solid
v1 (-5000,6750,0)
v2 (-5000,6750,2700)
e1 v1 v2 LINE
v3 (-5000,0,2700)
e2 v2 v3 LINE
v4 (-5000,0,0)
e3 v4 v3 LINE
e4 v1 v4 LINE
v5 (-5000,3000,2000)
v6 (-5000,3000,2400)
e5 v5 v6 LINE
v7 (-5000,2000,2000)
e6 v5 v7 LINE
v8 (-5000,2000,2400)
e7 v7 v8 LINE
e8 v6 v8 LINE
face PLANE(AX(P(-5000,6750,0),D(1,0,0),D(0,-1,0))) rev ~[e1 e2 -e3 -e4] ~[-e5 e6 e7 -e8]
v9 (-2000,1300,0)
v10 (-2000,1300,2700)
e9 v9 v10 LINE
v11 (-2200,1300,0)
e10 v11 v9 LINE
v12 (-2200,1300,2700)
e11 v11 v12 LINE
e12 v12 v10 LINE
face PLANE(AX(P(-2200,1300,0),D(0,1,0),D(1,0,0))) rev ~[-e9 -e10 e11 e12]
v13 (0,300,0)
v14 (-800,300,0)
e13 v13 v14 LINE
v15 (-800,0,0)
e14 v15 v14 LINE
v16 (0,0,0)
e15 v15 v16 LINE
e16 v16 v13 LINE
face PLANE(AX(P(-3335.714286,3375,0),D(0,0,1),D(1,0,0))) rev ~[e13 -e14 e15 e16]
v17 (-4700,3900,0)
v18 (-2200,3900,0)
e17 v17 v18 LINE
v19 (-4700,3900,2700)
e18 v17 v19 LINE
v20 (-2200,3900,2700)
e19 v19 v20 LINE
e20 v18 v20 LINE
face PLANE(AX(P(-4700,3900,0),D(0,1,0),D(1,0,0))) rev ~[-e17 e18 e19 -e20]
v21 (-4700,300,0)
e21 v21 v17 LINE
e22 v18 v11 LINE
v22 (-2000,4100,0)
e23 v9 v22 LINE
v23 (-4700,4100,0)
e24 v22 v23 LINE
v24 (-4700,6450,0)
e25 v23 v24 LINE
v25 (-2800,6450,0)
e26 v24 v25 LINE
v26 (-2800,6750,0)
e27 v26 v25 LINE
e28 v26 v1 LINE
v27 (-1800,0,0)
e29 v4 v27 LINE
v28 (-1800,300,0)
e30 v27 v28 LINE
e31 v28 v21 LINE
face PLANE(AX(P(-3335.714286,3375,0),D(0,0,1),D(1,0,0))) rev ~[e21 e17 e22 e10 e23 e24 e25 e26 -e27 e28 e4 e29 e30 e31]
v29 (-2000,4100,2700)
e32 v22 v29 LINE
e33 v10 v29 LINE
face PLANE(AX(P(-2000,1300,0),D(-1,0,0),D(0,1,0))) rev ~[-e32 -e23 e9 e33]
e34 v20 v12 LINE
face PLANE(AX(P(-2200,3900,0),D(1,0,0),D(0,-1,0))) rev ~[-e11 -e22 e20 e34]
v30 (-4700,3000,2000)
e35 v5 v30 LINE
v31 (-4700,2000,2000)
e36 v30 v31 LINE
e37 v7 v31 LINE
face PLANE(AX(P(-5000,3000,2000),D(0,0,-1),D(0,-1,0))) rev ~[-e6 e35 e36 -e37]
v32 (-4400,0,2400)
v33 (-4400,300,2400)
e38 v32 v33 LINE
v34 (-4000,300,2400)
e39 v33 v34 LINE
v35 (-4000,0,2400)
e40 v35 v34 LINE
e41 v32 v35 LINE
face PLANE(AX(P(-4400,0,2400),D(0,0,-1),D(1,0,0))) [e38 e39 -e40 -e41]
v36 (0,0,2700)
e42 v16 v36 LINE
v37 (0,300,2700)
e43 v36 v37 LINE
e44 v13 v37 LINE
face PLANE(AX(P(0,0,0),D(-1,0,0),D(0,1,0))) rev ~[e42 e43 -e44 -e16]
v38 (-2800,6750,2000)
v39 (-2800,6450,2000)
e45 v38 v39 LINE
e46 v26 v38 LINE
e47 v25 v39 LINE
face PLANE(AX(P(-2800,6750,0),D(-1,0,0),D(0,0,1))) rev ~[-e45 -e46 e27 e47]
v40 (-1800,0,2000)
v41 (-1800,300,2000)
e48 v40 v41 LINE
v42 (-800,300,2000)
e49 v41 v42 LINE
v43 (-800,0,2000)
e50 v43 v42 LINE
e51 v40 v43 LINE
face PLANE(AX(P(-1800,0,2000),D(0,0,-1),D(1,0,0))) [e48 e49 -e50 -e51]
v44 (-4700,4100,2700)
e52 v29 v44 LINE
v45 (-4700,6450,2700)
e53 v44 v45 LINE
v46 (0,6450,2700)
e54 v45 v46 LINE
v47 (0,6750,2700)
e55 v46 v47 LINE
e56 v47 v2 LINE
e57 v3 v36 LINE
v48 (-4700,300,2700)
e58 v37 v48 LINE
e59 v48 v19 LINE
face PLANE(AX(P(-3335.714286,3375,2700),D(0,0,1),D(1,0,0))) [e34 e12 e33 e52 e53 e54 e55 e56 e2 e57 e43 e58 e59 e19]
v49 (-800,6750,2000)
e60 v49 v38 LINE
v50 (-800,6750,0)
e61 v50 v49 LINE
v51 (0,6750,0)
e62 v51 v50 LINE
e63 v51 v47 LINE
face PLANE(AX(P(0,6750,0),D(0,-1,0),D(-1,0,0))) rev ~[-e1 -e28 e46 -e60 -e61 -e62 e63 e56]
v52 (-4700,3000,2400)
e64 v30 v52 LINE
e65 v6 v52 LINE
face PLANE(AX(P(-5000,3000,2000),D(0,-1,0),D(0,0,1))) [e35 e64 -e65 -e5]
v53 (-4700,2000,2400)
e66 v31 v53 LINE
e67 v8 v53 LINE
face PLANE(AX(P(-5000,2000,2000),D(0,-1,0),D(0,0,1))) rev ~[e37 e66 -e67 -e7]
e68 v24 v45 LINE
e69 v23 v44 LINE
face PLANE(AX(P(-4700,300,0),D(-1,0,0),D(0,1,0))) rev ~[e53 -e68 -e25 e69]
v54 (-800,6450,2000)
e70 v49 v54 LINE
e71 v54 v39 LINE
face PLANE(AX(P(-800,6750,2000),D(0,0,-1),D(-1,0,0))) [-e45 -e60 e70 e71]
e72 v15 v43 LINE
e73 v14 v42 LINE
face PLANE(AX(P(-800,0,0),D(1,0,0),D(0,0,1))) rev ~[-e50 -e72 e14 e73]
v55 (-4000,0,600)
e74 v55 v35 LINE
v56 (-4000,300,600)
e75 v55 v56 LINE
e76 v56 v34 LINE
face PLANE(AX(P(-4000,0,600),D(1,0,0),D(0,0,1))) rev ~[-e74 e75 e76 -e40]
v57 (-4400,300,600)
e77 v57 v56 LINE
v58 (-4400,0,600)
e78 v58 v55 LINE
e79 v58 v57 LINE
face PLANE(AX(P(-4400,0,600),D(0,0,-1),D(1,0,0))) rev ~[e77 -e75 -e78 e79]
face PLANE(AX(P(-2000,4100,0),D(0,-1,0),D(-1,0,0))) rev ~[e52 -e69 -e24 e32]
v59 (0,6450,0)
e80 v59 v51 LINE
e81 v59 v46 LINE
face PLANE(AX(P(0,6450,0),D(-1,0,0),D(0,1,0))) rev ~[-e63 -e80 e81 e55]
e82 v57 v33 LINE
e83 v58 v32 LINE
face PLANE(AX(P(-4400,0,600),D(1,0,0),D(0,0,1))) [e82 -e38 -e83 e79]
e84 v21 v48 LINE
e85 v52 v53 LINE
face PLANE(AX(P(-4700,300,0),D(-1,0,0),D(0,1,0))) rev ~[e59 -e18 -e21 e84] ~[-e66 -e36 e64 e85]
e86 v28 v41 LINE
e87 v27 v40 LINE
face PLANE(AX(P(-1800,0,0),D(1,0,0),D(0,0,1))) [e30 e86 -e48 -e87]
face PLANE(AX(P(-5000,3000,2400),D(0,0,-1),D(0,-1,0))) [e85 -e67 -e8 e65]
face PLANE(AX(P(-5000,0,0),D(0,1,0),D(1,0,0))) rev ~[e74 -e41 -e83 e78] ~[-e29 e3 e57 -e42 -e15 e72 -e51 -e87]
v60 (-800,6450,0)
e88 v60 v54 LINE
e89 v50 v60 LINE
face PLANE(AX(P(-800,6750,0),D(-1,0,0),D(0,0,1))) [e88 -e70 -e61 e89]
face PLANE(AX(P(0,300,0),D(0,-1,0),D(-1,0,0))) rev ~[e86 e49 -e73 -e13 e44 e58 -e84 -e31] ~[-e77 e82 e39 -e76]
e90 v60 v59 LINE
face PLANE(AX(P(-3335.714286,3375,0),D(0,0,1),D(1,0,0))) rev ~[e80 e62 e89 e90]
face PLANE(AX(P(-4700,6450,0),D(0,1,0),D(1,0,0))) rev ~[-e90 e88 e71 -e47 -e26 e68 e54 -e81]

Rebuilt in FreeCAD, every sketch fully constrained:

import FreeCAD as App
import Part
import Sketcher

V = App.Vector


def add_polygon(sketch, points):
    """Adds a closed chain of lines whose ends are joined by coincident constraints."""
    first, n = sketch.GeometryCount, len(points)
    for a, b in zip(points, points[1:] + points[:1]):
        sketch.addGeometry(Part.LineSegment(App.Vector(*a, 0), App.Vector(*b, 0)), False)
    for i in range(n):
        sketch.addConstraint(Sketcher.Constraint("Coincident", first + i, 2, first + (i + 1) % n, 1))

doc = App.newDocument("Part")
params = doc.addObject("Spreadsheet::Sheet", "Params")
for row, (alias, value) in enumerate([
    ("sketch1_width", "5000 mm"),
    ("sketch1_width2", "4700 mm"),
    ("sketch1_height", "300 mm"),
    ("sketch1_height2", "6150 mm"),
    ("pad1_length", "2700 mm"),
    ("sketch2_width", "1000 mm"),
    ("sketch2_height", "2000 mm"),
    ("pocket1_length", "400 mm"),
    ("sketch3_width", "400 mm"),
    ("sketch3_height", "1800 mm"),
    ("pocket2_length", "400 mm"),
    ("sketch4_width", "2000 mm"),
    ("pocket3_length", "400 mm"),
    ("sketch5_width", "2700 mm"),
    ("sketch5_width2", "2500 mm"),
    ("sketch5_height", "2600 mm"),
    ("pad2_length", "2700 mm"),
    ("sketch6_width", "1000 mm"),
    ("sketch6_height", "400 mm"),
    ("pocket4_length", "400 mm"),
], start=1):
    params.set(f"A{row}", alias)
    params.set(f"B{row}", "=" + value)
    params.setAlias(f"B{row}", alias)

body = doc.addObject("PartDesign::Body", "Body")

# Sketch on XY plane
sketch1 = body.newObject("Sketcher::SketchObject", "Sketch")
sketch1.AttachmentSupport = (doc.getObject("XY_Plane"), [""])
sketch1.MapMode = "FlatFace"
add_polygon(sketch1, [(-5000, 0), (0, 0), (0, 300), (-4700, 300), (-4700, 6450), (0, 6450), (0, 6750), (-5000, 6750)])  # lines 0-7
sketch1.addConstraint(Sketcher.Constraint("Horizontal", 0))
sketch1.addConstraint(Sketcher.Constraint("Vertical", 1))
sketch1.addConstraint(Sketcher.Constraint("Horizontal", 2))
sketch1.addConstraint(Sketcher.Constraint("Vertical", 3))
sketch1.addConstraint(Sketcher.Constraint("Horizontal", 4))
sketch1.addConstraint(Sketcher.Constraint("Vertical", 5))
sketch1.addConstraint(Sketcher.Constraint("Horizontal", 6))
sketch1.addConstraint(Sketcher.Constraint("Vertical", 7))
sketch1.addConstraint(Sketcher.Constraint("Coincident", 0, 2, -1, 1))
sketch1.addConstraint(Sketcher.Constraint("PointOnObject", 4, 2, -2))
sketch1.addConstraint(Sketcher.Constraint("Equal", 1, 5))
sketch1.addConstraint(Sketcher.Constraint("DistanceX", 0, 1, 0, 2, 5000.0))
sketch1.addConstraint(Sketcher.Constraint("DistanceX", 2, 2, 2, 1, 4700.0))
sketch1.addConstraint(Sketcher.Constraint("DistanceY", 1, 1, 1, 2, 300.0))
sketch1.addConstraint(Sketcher.Constraint("DistanceY", 3, 1, 3, 2, 6150.0))
sketch1.setExpression("Constraints[19]", "Params.sketch1_width")
sketch1.setExpression("Constraints[20]", "Params.sketch1_width2")
sketch1.setExpression("Constraints[21]", "Params.sketch1_height")
sketch1.setExpression("Constraints[22]", "Params.sketch1_height2")
pad1 = body.newObject("PartDesign::Pad", "Pad")
pad1.Profile = sketch1
pad1.setExpression("Length", "Params.pad1_length")

# Sketch on XZ plane
sketch2 = body.newObject("Sketcher::SketchObject", "Sketch001")
sketch2.AttachmentSupport = (doc.getObject("XZ_Plane"), [""])
sketch2.MapMode = "FlatFace"
add_polygon(sketch2, [(-1800, 2000), (-1800, 0), (-800, 0), (-800, 2000)])  # lines 0-3
sketch2.addConstraint(Sketcher.Constraint("Vertical", 0))
sketch2.addConstraint(Sketcher.Constraint("Horizontal", 1))
sketch2.addConstraint(Sketcher.Constraint("Vertical", 2))
sketch2.addConstraint(Sketcher.Constraint("Horizontal", 3))
sketch2.addConstraint(Sketcher.Constraint("PointOnObject", 0, 2, -1))
sketch2.addConstraint(Sketcher.Constraint("DistanceX", 1, 1, 1, 2, 1000.0))
sketch2.addConstraint(Sketcher.Constraint("DistanceY", 0, 2, 0, 1, 2000.0))
sketch2.addConstraint(Sketcher.Constraint("DistanceX", 0, 2, -1, 1, 1800.0))
sketch2.setExpression("Constraints[9]", "Params.sketch2_width")
sketch2.setExpression("Constraints[10]", "Params.sketch2_height")
pocket1 = body.newObject("PartDesign::Pocket", "Pocket")
pocket1.Profile = sketch2
pocket1.setExpression("Length", "Params.pocket1_length")

# Sketch on XZ plane
sketch3 = body.newObject("Sketcher::SketchObject", "Sketch002")
sketch3.AttachmentSupport = (doc.getObject("XZ_Plane"), [""])
sketch3.MapMode = "FlatFace"
add_polygon(sketch3, [(-4400, 2400), (-4400, 600), (-4000, 600), (-4000, 2400)])  # lines 0-3
sketch3.addConstraint(Sketcher.Constraint("Vertical", 0))
sketch3.addConstraint(Sketcher.Constraint("Horizontal", 1))
sketch3.addConstraint(Sketcher.Constraint("Vertical", 2))
sketch3.addConstraint(Sketcher.Constraint("Horizontal", 3))
sketch3.addConstraint(Sketcher.Constraint("DistanceX", 1, 1, 1, 2, 400.0))
sketch3.addConstraint(Sketcher.Constraint("DistanceY", 0, 2, 0, 1, 1800.0))
sketch3.addConstraint(Sketcher.Constraint("DistanceX", 0, 2, -1, 1, 4400.0))
sketch3.addConstraint(Sketcher.Constraint("DistanceY", -1, 1, 0, 2, 600.0))
sketch3.setExpression("Constraints[8]", "Params.sketch3_width")
sketch3.setExpression("Constraints[9]", "Params.sketch3_height")
pocket2 = body.newObject("PartDesign::Pocket", "Pocket001")
pocket2.Profile = sketch3
pocket2.setExpression("Length", "Params.pocket2_length")

# Sketch on XZ plane
sketch4 = body.newObject("Sketcher::SketchObject", "Sketch003")
sketch4.AttachmentSupport = (doc.getObject("XZ_Plane"), [""])
sketch4.MapMode = "FlatFace"
sketch4.AttachmentOffset = App.Placement(V(0, 0, -6750), App.Rotation())
add_polygon(sketch4, [(-800, 2000), (-800, 0), (-2800, 0), (-2800, 2000)])  # lines 0-3
sketch4.addConstraint(Sketcher.Constraint("Vertical", 0))
sketch4.addConstraint(Sketcher.Constraint("Horizontal", 1))
sketch4.addConstraint(Sketcher.Constraint("Vertical", 2))
sketch4.addConstraint(Sketcher.Constraint("Horizontal", 3))
sketch4.addConstraint(Sketcher.Constraint("PointOnObject", 0, 2, -1))
sketch4.addConstraint(Sketcher.Constraint("Equal", 3, 0))
sketch4.addConstraint(Sketcher.Constraint("DistanceX", 1, 2, 1, 1, 2000.0))
sketch4.addConstraint(Sketcher.Constraint("DistanceX", 0, 2, -1, 1, 800.0))
sketch4.setExpression("Constraints[10]", "Params.sketch4_width")
pocket3 = body.newObject("PartDesign::Pocket", "Pocket002")
pocket3.Profile = sketch4
pocket3.setExpression("Length", "Params.pocket3_length")
pocket3.Reversed = True

# Sketch on XY plane
sketch5 = body.newObject("Sketcher::SketchObject", "Sketch004")
sketch5.AttachmentSupport = (doc.getObject("XY_Plane"), [""])
sketch5.MapMode = "FlatFace"
add_polygon(sketch5, [(-2000, 4100), (-4700, 4100), (-4700, 3900), (-2200, 3900), (-2200, 1300), (-2000, 1300)])  # lines 0-5
sketch5.addConstraint(Sketcher.Constraint("Horizontal", 0))
sketch5.addConstraint(Sketcher.Constraint("Vertical", 1))
sketch5.addConstraint(Sketcher.Constraint("Horizontal", 2))
sketch5.addConstraint(Sketcher.Constraint("Vertical", 3))
sketch5.addConstraint(Sketcher.Constraint("Horizontal", 4))
sketch5.addConstraint(Sketcher.Constraint("Vertical", 5))
sketch5.addConstraint(Sketcher.Constraint("Equal", 4, 1))
sketch5.addConstraint(Sketcher.Constraint("DistanceX", 0, 2, 0, 1, 2700.0))
sketch5.addConstraint(Sketcher.Constraint("DistanceX", 2, 1, 2, 2, 2500.0))
sketch5.addConstraint(Sketcher.Constraint("DistanceY", 3, 2, 3, 1, 2600.0))
sketch5.addConstraint(Sketcher.Constraint("DistanceX", 0, 2, -1, 1, 4700.0))
sketch5.addConstraint(Sketcher.Constraint("DistanceY", -1, 1, 0, 2, 4100.0))
sketch5.setExpression("Constraints[13]", "Params.sketch5_width")
sketch5.setExpression("Constraints[14]", "Params.sketch5_width2")
sketch5.setExpression("Constraints[15]", "Params.sketch5_height")
pad2 = body.newObject("PartDesign::Pad", "Pad001")
pad2.Profile = sketch5
pad2.setExpression("Length", "Params.pad2_length")

# Sketch on YZ plane
sketch6 = body.newObject("Sketcher::SketchObject", "Sketch005")
sketch6.AttachmentSupport = (doc.getObject("YZ_Plane"), [""])
sketch6.MapMode = "FlatFace"
sketch6.AttachmentOffset = App.Placement(V(0, 0, -5000), App.Rotation())
add_polygon(sketch6, [(3000, 2400), (3000, 2000), (2000, 2000), (2000, 2400)])  # lines 0-3
sketch6.addConstraint(Sketcher.Constraint("Vertical", 0))
sketch6.addConstraint(Sketcher.Constraint("Horizontal", 1))
sketch6.addConstraint(Sketcher.Constraint("Vertical", 2))
sketch6.addConstraint(Sketcher.Constraint("Horizontal", 3))
sketch6.addConstraint(Sketcher.Constraint("DistanceX", 1, 2, 1, 1, 1000.0))
sketch6.addConstraint(Sketcher.Constraint("DistanceY", 0, 2, 0, 1, 400.0))
sketch6.addConstraint(Sketcher.Constraint("DistanceX", -1, 1, 0, 2, 3000.0))
sketch6.addConstraint(Sketcher.Constraint("DistanceY", -1, 1, 0, 2, 2000.0))
sketch6.setExpression("Constraints[8]", "Params.sketch6_width")
sketch6.setExpression("Constraints[9]", "Params.sketch6_height")
pocket4 = body.newObject("PartDesign::Pocket", "Pocket003")
pocket4.Profile = sketch6
pocket4.setExpression("Length", "Params.pocket4_length")
pocket4.Reversed = True

doc.recompute()
